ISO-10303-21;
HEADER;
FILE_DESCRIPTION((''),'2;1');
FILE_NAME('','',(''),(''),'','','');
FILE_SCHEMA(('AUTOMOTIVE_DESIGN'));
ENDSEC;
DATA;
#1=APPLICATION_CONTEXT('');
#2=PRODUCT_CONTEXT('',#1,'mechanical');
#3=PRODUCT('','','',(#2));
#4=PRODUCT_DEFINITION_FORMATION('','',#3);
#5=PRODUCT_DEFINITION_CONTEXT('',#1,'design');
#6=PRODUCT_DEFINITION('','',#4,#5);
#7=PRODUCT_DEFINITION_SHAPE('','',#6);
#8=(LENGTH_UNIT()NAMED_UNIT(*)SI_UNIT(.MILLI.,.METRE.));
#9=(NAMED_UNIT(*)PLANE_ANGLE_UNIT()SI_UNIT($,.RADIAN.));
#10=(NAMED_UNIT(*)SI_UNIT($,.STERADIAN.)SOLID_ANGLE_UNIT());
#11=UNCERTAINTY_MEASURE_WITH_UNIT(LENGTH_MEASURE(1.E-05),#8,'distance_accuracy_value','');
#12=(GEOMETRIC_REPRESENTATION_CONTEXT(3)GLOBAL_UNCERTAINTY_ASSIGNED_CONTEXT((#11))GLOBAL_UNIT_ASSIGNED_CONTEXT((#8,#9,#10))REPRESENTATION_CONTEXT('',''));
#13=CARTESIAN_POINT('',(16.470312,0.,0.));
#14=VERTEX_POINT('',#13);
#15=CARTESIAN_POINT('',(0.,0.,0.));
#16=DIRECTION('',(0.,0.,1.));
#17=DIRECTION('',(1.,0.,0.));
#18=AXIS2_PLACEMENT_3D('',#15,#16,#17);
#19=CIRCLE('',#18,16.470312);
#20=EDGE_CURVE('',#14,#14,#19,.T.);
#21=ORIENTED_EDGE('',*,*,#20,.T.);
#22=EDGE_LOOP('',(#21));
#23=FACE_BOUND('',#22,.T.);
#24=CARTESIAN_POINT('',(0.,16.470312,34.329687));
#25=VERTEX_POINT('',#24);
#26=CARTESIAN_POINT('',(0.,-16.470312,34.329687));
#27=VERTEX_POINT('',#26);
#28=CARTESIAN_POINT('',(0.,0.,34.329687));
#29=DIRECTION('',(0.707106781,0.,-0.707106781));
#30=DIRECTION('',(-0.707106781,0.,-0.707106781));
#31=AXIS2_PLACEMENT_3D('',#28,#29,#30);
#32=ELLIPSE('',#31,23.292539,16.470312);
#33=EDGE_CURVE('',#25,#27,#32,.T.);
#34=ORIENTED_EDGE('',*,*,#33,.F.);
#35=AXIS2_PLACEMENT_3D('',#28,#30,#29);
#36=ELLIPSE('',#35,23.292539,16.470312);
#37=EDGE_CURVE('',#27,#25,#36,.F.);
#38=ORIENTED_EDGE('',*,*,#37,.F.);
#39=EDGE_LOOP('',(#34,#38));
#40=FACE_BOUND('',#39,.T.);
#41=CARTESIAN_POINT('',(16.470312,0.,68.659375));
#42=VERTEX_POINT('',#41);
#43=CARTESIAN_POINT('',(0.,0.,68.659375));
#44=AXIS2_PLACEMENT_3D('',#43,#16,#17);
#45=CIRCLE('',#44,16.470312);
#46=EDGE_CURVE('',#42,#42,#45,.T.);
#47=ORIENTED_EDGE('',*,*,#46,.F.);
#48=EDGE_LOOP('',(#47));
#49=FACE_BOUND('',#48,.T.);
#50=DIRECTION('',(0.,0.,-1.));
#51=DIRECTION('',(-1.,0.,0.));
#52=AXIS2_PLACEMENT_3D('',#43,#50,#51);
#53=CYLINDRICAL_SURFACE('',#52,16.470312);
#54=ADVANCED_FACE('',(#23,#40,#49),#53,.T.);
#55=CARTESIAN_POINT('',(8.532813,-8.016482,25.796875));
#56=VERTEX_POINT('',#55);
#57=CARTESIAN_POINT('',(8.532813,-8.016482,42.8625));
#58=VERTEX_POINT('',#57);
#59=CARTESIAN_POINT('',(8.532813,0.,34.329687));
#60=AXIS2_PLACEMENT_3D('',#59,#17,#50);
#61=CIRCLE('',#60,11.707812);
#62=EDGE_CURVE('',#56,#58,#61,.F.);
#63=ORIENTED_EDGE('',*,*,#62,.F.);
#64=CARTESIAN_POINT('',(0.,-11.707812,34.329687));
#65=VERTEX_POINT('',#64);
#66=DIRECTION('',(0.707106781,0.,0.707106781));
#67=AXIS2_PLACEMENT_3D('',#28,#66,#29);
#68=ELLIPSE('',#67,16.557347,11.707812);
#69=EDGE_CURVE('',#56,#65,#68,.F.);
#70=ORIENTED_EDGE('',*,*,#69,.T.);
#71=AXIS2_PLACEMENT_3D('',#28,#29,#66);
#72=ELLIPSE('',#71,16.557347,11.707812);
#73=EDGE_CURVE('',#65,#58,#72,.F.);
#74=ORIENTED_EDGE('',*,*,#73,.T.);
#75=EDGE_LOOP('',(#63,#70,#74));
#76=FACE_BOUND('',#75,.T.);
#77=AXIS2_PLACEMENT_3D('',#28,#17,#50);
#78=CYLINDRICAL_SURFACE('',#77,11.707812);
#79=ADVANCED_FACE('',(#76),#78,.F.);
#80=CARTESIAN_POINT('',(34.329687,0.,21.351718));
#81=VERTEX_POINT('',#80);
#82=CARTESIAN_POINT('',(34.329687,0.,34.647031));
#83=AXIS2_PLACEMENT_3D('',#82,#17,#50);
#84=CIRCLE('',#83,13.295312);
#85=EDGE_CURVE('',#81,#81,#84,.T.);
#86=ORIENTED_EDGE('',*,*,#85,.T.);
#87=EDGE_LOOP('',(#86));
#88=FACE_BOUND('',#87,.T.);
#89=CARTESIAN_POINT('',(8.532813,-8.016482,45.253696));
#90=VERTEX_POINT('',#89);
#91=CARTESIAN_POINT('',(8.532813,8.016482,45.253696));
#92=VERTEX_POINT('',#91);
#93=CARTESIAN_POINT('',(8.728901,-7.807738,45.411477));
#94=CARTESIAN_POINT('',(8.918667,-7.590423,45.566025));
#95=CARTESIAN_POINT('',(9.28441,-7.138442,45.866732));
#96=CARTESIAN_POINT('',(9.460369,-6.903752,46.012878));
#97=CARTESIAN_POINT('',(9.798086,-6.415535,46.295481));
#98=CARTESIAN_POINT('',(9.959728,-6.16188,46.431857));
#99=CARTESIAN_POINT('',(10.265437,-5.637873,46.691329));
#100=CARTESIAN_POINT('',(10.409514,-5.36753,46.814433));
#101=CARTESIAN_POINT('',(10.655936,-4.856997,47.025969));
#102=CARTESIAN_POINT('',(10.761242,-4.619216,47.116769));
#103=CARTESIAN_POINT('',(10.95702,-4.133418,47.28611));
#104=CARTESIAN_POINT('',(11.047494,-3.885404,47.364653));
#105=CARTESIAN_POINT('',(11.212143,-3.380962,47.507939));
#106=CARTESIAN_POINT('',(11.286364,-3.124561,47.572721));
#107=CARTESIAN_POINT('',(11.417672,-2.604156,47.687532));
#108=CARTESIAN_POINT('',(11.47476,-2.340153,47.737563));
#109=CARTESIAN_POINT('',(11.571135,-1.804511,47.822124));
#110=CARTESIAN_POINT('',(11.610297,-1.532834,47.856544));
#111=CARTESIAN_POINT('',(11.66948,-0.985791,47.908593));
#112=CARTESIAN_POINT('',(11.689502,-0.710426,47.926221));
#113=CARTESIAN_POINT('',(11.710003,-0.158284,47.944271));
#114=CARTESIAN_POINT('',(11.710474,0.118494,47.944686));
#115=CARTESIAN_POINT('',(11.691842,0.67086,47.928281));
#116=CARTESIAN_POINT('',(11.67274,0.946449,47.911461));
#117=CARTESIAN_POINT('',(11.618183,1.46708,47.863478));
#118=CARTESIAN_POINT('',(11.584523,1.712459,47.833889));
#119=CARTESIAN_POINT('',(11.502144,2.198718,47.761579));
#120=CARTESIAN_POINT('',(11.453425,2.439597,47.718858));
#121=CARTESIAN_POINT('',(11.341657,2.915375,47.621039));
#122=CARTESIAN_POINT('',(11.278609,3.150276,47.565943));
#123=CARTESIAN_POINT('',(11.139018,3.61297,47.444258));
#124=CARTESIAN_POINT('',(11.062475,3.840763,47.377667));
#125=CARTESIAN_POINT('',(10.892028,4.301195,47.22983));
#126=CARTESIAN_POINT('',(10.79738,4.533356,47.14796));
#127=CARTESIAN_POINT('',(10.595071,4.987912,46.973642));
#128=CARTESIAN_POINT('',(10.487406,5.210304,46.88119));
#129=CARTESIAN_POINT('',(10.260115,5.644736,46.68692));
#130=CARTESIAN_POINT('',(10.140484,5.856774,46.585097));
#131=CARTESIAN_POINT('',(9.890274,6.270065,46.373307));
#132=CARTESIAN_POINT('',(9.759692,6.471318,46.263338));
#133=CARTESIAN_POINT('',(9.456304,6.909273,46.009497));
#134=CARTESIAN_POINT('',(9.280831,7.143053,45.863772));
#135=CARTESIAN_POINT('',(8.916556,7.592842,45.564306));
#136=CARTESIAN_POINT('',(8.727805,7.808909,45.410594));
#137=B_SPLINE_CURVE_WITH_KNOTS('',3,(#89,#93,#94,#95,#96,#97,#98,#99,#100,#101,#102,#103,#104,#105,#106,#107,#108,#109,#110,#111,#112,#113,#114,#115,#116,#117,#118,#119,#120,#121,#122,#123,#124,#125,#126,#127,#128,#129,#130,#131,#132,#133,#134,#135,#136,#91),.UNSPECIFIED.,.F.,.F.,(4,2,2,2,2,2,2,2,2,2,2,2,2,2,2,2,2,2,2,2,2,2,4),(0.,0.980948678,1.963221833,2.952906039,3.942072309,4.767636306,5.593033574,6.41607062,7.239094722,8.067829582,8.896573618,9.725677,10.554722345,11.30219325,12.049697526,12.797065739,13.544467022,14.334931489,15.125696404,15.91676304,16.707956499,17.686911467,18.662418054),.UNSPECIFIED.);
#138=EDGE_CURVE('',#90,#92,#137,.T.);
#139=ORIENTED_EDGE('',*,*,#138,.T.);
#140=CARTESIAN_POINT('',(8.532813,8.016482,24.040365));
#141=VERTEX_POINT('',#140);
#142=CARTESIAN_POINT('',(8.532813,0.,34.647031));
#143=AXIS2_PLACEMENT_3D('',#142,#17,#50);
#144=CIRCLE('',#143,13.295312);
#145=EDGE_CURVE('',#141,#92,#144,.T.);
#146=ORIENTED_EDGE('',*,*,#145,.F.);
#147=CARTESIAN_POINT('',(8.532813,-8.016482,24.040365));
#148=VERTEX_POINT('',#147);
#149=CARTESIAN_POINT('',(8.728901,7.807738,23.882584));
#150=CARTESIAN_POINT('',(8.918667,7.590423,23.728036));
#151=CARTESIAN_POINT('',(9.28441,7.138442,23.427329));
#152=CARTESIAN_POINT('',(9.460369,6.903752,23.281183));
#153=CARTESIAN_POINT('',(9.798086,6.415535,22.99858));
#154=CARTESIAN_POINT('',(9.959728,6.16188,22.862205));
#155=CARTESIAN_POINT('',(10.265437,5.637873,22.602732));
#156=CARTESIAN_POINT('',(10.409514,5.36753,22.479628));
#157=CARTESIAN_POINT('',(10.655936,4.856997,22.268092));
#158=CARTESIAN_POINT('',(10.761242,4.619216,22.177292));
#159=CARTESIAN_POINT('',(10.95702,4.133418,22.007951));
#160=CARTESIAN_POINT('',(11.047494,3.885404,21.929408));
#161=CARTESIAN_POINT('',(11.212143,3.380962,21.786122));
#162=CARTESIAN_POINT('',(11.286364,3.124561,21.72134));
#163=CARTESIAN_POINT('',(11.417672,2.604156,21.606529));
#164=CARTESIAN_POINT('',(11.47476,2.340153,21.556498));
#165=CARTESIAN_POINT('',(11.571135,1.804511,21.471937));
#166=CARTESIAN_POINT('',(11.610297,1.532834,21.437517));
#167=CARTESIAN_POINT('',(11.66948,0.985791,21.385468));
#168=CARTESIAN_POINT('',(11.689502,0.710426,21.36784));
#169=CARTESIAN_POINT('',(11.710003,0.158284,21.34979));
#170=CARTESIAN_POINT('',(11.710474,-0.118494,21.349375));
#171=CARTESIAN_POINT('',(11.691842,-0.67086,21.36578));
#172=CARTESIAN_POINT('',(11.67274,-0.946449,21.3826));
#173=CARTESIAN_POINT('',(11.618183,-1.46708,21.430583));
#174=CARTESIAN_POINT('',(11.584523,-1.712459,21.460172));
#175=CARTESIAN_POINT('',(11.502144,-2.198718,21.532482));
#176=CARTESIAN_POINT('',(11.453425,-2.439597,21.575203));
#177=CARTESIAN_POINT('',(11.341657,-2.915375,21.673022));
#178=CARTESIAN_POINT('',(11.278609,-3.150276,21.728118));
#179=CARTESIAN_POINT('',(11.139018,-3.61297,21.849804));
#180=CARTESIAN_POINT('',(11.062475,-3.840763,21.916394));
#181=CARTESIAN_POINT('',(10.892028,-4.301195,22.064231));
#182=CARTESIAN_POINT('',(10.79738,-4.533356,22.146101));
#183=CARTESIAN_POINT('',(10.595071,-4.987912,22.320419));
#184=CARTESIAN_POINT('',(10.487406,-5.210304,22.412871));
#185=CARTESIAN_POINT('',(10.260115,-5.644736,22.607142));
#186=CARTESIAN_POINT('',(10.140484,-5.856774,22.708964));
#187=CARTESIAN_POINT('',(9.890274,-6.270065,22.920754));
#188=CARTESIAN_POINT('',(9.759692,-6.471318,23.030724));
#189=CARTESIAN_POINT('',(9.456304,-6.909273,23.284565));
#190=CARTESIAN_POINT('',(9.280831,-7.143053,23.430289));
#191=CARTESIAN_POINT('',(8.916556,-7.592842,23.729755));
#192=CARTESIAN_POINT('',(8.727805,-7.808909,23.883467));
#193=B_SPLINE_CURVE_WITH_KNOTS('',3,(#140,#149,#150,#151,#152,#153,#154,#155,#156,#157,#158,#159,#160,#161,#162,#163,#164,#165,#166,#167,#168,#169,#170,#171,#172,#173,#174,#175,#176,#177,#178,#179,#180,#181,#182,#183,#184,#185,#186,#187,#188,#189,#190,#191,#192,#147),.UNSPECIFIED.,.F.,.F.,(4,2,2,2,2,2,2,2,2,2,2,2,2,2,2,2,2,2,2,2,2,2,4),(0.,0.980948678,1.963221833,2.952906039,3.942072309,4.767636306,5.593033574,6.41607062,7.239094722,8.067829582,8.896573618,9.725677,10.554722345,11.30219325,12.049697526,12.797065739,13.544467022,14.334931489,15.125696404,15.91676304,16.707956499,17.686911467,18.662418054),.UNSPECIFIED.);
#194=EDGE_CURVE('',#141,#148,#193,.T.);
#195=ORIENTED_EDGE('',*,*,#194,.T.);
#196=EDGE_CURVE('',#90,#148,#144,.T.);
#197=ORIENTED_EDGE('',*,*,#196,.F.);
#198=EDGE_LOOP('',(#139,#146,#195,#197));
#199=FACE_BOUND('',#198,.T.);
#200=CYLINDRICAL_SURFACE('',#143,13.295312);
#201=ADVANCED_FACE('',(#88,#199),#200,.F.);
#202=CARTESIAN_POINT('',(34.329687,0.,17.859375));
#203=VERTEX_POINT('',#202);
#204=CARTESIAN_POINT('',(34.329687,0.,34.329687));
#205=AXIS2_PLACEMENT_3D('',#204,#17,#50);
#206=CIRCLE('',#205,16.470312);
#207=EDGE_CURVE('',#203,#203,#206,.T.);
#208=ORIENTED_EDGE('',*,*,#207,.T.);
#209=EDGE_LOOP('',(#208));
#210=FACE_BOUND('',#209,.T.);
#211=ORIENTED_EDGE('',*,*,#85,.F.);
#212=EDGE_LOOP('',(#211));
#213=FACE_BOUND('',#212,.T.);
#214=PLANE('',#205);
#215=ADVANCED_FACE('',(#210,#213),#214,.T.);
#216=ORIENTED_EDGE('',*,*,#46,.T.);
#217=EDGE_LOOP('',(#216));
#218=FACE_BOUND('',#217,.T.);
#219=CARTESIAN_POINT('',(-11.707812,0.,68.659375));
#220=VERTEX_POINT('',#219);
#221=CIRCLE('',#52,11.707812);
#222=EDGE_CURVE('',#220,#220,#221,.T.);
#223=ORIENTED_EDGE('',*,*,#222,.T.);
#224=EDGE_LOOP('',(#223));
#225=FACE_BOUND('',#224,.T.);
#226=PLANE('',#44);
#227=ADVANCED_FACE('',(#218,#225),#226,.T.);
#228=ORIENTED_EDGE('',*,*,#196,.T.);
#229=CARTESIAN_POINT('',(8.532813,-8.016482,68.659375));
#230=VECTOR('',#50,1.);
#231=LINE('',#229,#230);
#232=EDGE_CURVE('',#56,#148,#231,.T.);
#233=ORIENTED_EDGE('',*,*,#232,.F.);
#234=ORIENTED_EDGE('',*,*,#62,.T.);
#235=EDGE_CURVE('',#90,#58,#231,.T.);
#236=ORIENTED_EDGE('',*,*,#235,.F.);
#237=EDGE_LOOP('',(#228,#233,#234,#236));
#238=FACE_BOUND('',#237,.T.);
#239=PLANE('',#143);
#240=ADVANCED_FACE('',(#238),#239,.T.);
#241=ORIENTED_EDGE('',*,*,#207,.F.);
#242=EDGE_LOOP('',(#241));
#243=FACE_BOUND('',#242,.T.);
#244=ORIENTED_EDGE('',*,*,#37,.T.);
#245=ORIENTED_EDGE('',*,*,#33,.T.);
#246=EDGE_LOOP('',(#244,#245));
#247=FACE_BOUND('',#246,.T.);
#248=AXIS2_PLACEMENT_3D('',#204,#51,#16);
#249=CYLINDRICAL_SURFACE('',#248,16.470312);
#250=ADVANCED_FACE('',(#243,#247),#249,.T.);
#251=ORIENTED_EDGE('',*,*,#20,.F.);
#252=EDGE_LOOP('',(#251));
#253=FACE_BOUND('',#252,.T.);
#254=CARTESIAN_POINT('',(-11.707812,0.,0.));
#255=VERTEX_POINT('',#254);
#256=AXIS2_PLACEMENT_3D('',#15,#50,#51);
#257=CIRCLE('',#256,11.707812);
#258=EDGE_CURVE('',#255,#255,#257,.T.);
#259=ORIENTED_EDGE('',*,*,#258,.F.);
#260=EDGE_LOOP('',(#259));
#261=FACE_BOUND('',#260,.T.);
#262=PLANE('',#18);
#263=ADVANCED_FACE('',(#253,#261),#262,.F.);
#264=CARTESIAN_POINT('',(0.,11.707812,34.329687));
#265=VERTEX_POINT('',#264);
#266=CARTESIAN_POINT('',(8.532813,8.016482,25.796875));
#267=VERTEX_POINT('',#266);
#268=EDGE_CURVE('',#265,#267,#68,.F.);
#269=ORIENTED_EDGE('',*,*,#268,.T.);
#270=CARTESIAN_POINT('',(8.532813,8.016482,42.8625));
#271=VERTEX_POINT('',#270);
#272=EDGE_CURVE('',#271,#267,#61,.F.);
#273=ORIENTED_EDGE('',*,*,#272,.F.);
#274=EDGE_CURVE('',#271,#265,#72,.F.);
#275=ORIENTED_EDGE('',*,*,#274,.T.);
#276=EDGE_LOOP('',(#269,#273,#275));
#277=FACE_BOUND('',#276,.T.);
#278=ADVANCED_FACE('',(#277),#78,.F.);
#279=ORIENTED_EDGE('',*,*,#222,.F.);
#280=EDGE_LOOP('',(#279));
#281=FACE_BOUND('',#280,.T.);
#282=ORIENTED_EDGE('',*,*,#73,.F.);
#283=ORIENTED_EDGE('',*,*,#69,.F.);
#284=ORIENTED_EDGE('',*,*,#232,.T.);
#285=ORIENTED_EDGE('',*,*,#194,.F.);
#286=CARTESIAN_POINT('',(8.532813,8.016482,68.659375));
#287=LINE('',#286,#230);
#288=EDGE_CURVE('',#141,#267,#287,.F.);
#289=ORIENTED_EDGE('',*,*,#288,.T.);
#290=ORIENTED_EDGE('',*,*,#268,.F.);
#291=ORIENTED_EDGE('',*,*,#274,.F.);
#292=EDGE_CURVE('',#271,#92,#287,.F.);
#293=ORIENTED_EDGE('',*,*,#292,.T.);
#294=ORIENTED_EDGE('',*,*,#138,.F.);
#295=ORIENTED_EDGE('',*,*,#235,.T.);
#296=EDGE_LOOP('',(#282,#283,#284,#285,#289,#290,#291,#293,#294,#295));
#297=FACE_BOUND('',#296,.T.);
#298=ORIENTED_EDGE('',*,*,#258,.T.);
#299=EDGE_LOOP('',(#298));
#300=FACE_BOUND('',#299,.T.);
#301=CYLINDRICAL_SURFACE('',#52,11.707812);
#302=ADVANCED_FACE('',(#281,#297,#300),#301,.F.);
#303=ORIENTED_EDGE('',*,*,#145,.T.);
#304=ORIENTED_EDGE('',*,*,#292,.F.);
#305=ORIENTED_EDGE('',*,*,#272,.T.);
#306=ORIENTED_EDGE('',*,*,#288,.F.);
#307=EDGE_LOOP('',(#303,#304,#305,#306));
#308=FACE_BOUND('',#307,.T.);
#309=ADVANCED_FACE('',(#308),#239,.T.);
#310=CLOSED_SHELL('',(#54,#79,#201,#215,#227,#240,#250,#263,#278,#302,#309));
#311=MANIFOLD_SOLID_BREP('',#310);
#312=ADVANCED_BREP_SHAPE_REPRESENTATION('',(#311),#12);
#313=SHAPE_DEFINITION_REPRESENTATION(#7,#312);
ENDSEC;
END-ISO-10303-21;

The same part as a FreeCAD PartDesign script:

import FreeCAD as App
import Part
import Sketcher
from FreeCAD import Vector
Q = App.Units.Quantity

doc = App.newDocument("Part")
body = doc.addObject("PartDesign::Body", "Body")

# Sketch on XY plane
sketch1 = doc.addObject("Sketcher::SketchObject", "Sketch")
body.addObject(sketch1)
sketch1.AttachmentSupport = (doc.XY_Plane, [""])
sketch1.MapMode = "FlatFace"
sketch1.addGeometry(Part.Circle(Vector(0, 0, 0), Vector(0, 0, 1), 16), False)
sketch1.addConstraint(Sketcher.Constraint("Coincident", 0, 3, -1, 1))
sketch1.addConstraint(Sketcher.Constraint("Diameter", 0, Q("1.296875 in")))
pad1 = doc.addObject("PartDesign::Pad", "Pad")
body.addObject(pad1)
pad1.Profile = sketch1
pad1.Length = Q("2.703125 in")

# Sketch on YZ plane
sketch2 = doc.addObject("Sketcher::SketchObject", "Sketch001")
body.addObject(sketch2)
sketch2.AttachmentSupport = (doc.YZ_Plane, [""])
sketch2.MapMode = "FlatFace"
sketch2.addGeometry(Part.Circle(Vector(0, 34, 0), Vector(0, 0, 1), 16), False)
sketch2.addConstraint(Sketcher.Constraint("PointOnObject", 0, 3, -2))
sketch2.addConstraint(Sketcher.Constraint("Diameter", 0, Q("1.296875 in")))
sketch2.addConstraint(Sketcher.Constraint("DistanceY", -1, 1, 0, 3, Q("34.329687 mm")))
pad2 = doc.addObject("PartDesign::Pad", "Pad001")
body.addObject(pad2)
pad2.Profile = sketch2
pad2.Length = 34.329687

# Sketch on YZ plane
sketch3 = doc.addObject("Sketcher::SketchObject", "Sketch002")
body.addObject(sketch3)
sketch3.AttachmentSupport = (doc.YZ_Plane, [""])
sketch3.MapMode = "FlatFace"
sketch3.AttachmentOffset = App.Placement(Vector(0, 0, 34.329687), App.Rotation())
sketch3.addGeometry(Part.Circle(Vector(0, 34, 0), Vector(0, 0, 1), 12), False)
sketch3.addConstraint(Sketcher.Constraint("PointOnObject", 0, 3, -2))
sketch3.addConstraint(Sketcher.Constraint("Diameter", 0, Q("0.921875 in")))
sketch3.addConstraint(Sketcher.Constraint("DistanceY", -1, 1, 0, 3, Q("34.329687 mm")))
pocket1 = doc.addObject("PartDesign::Pocket", "Pocket")
body.addObject(pocket1)
pocket1.Profile = sketch3
pocket1.Length = 34.329687

# Sketch on YZ plane
sketch4 = doc.addObject("Sketcher::SketchObject", "Sketch003")
body.addObject(sketch4)
sketch4.AttachmentSupport = (doc.YZ_Plane, [""])
sketch4.MapMode = "FlatFace"
sketch4.AttachmentOffset = App.Placement(Vector(0, 0, 34.329687), App.Rotation())
sketch4.addGeometry(Part.Circle(Vector(0, 35, 0), Vector(0, 0, 1), 13), False)
sketch4.addConstraint(Sketcher.Constraint("PointOnObject", 0, 3, -2))
sketch4.addConstraint(Sketcher.Constraint("Diameter", 0, Q("1.046875 in")))
sketch4.addConstraint(Sketcher.Constraint("DistanceY", -1, 1, 0, 3, Q("34.647031 mm")))
pocket2 = doc.addObject("PartDesign::Pocket", "Pocket001")
body.addObject(pocket2)
pocket2.Profile = sketch4
pocket2.Length = Q("1.015625 in")

# Sketch on XY plane
sketch5 = doc.addObject("Sketcher::SketchObject", "Sketch004")
body.addObject(sketch5)
sketch5.AttachmentSupport = (doc.XY_Plane, [""])
sketch5.MapMode = "FlatFace"
sketch5.addGeometry(Part.Circle(Vector(0, 0, 0), Vector(0, 0, 1), 12), False)
sketch5.addConstraint(Sketcher.Constraint("Coincident", 0, 3, -1, 1))
sketch5.addConstraint(Sketcher.Constraint("Diameter", 0, Q("0.921875 in")))
pocket3 = doc.addObject("PartDesign::Pocket", "Pocket002")
body.addObject(pocket3)
pocket3.Profile = sketch5
pocket3.Type = "ThroughAll"
pocket3.Reversed = True

doc.recompute()
